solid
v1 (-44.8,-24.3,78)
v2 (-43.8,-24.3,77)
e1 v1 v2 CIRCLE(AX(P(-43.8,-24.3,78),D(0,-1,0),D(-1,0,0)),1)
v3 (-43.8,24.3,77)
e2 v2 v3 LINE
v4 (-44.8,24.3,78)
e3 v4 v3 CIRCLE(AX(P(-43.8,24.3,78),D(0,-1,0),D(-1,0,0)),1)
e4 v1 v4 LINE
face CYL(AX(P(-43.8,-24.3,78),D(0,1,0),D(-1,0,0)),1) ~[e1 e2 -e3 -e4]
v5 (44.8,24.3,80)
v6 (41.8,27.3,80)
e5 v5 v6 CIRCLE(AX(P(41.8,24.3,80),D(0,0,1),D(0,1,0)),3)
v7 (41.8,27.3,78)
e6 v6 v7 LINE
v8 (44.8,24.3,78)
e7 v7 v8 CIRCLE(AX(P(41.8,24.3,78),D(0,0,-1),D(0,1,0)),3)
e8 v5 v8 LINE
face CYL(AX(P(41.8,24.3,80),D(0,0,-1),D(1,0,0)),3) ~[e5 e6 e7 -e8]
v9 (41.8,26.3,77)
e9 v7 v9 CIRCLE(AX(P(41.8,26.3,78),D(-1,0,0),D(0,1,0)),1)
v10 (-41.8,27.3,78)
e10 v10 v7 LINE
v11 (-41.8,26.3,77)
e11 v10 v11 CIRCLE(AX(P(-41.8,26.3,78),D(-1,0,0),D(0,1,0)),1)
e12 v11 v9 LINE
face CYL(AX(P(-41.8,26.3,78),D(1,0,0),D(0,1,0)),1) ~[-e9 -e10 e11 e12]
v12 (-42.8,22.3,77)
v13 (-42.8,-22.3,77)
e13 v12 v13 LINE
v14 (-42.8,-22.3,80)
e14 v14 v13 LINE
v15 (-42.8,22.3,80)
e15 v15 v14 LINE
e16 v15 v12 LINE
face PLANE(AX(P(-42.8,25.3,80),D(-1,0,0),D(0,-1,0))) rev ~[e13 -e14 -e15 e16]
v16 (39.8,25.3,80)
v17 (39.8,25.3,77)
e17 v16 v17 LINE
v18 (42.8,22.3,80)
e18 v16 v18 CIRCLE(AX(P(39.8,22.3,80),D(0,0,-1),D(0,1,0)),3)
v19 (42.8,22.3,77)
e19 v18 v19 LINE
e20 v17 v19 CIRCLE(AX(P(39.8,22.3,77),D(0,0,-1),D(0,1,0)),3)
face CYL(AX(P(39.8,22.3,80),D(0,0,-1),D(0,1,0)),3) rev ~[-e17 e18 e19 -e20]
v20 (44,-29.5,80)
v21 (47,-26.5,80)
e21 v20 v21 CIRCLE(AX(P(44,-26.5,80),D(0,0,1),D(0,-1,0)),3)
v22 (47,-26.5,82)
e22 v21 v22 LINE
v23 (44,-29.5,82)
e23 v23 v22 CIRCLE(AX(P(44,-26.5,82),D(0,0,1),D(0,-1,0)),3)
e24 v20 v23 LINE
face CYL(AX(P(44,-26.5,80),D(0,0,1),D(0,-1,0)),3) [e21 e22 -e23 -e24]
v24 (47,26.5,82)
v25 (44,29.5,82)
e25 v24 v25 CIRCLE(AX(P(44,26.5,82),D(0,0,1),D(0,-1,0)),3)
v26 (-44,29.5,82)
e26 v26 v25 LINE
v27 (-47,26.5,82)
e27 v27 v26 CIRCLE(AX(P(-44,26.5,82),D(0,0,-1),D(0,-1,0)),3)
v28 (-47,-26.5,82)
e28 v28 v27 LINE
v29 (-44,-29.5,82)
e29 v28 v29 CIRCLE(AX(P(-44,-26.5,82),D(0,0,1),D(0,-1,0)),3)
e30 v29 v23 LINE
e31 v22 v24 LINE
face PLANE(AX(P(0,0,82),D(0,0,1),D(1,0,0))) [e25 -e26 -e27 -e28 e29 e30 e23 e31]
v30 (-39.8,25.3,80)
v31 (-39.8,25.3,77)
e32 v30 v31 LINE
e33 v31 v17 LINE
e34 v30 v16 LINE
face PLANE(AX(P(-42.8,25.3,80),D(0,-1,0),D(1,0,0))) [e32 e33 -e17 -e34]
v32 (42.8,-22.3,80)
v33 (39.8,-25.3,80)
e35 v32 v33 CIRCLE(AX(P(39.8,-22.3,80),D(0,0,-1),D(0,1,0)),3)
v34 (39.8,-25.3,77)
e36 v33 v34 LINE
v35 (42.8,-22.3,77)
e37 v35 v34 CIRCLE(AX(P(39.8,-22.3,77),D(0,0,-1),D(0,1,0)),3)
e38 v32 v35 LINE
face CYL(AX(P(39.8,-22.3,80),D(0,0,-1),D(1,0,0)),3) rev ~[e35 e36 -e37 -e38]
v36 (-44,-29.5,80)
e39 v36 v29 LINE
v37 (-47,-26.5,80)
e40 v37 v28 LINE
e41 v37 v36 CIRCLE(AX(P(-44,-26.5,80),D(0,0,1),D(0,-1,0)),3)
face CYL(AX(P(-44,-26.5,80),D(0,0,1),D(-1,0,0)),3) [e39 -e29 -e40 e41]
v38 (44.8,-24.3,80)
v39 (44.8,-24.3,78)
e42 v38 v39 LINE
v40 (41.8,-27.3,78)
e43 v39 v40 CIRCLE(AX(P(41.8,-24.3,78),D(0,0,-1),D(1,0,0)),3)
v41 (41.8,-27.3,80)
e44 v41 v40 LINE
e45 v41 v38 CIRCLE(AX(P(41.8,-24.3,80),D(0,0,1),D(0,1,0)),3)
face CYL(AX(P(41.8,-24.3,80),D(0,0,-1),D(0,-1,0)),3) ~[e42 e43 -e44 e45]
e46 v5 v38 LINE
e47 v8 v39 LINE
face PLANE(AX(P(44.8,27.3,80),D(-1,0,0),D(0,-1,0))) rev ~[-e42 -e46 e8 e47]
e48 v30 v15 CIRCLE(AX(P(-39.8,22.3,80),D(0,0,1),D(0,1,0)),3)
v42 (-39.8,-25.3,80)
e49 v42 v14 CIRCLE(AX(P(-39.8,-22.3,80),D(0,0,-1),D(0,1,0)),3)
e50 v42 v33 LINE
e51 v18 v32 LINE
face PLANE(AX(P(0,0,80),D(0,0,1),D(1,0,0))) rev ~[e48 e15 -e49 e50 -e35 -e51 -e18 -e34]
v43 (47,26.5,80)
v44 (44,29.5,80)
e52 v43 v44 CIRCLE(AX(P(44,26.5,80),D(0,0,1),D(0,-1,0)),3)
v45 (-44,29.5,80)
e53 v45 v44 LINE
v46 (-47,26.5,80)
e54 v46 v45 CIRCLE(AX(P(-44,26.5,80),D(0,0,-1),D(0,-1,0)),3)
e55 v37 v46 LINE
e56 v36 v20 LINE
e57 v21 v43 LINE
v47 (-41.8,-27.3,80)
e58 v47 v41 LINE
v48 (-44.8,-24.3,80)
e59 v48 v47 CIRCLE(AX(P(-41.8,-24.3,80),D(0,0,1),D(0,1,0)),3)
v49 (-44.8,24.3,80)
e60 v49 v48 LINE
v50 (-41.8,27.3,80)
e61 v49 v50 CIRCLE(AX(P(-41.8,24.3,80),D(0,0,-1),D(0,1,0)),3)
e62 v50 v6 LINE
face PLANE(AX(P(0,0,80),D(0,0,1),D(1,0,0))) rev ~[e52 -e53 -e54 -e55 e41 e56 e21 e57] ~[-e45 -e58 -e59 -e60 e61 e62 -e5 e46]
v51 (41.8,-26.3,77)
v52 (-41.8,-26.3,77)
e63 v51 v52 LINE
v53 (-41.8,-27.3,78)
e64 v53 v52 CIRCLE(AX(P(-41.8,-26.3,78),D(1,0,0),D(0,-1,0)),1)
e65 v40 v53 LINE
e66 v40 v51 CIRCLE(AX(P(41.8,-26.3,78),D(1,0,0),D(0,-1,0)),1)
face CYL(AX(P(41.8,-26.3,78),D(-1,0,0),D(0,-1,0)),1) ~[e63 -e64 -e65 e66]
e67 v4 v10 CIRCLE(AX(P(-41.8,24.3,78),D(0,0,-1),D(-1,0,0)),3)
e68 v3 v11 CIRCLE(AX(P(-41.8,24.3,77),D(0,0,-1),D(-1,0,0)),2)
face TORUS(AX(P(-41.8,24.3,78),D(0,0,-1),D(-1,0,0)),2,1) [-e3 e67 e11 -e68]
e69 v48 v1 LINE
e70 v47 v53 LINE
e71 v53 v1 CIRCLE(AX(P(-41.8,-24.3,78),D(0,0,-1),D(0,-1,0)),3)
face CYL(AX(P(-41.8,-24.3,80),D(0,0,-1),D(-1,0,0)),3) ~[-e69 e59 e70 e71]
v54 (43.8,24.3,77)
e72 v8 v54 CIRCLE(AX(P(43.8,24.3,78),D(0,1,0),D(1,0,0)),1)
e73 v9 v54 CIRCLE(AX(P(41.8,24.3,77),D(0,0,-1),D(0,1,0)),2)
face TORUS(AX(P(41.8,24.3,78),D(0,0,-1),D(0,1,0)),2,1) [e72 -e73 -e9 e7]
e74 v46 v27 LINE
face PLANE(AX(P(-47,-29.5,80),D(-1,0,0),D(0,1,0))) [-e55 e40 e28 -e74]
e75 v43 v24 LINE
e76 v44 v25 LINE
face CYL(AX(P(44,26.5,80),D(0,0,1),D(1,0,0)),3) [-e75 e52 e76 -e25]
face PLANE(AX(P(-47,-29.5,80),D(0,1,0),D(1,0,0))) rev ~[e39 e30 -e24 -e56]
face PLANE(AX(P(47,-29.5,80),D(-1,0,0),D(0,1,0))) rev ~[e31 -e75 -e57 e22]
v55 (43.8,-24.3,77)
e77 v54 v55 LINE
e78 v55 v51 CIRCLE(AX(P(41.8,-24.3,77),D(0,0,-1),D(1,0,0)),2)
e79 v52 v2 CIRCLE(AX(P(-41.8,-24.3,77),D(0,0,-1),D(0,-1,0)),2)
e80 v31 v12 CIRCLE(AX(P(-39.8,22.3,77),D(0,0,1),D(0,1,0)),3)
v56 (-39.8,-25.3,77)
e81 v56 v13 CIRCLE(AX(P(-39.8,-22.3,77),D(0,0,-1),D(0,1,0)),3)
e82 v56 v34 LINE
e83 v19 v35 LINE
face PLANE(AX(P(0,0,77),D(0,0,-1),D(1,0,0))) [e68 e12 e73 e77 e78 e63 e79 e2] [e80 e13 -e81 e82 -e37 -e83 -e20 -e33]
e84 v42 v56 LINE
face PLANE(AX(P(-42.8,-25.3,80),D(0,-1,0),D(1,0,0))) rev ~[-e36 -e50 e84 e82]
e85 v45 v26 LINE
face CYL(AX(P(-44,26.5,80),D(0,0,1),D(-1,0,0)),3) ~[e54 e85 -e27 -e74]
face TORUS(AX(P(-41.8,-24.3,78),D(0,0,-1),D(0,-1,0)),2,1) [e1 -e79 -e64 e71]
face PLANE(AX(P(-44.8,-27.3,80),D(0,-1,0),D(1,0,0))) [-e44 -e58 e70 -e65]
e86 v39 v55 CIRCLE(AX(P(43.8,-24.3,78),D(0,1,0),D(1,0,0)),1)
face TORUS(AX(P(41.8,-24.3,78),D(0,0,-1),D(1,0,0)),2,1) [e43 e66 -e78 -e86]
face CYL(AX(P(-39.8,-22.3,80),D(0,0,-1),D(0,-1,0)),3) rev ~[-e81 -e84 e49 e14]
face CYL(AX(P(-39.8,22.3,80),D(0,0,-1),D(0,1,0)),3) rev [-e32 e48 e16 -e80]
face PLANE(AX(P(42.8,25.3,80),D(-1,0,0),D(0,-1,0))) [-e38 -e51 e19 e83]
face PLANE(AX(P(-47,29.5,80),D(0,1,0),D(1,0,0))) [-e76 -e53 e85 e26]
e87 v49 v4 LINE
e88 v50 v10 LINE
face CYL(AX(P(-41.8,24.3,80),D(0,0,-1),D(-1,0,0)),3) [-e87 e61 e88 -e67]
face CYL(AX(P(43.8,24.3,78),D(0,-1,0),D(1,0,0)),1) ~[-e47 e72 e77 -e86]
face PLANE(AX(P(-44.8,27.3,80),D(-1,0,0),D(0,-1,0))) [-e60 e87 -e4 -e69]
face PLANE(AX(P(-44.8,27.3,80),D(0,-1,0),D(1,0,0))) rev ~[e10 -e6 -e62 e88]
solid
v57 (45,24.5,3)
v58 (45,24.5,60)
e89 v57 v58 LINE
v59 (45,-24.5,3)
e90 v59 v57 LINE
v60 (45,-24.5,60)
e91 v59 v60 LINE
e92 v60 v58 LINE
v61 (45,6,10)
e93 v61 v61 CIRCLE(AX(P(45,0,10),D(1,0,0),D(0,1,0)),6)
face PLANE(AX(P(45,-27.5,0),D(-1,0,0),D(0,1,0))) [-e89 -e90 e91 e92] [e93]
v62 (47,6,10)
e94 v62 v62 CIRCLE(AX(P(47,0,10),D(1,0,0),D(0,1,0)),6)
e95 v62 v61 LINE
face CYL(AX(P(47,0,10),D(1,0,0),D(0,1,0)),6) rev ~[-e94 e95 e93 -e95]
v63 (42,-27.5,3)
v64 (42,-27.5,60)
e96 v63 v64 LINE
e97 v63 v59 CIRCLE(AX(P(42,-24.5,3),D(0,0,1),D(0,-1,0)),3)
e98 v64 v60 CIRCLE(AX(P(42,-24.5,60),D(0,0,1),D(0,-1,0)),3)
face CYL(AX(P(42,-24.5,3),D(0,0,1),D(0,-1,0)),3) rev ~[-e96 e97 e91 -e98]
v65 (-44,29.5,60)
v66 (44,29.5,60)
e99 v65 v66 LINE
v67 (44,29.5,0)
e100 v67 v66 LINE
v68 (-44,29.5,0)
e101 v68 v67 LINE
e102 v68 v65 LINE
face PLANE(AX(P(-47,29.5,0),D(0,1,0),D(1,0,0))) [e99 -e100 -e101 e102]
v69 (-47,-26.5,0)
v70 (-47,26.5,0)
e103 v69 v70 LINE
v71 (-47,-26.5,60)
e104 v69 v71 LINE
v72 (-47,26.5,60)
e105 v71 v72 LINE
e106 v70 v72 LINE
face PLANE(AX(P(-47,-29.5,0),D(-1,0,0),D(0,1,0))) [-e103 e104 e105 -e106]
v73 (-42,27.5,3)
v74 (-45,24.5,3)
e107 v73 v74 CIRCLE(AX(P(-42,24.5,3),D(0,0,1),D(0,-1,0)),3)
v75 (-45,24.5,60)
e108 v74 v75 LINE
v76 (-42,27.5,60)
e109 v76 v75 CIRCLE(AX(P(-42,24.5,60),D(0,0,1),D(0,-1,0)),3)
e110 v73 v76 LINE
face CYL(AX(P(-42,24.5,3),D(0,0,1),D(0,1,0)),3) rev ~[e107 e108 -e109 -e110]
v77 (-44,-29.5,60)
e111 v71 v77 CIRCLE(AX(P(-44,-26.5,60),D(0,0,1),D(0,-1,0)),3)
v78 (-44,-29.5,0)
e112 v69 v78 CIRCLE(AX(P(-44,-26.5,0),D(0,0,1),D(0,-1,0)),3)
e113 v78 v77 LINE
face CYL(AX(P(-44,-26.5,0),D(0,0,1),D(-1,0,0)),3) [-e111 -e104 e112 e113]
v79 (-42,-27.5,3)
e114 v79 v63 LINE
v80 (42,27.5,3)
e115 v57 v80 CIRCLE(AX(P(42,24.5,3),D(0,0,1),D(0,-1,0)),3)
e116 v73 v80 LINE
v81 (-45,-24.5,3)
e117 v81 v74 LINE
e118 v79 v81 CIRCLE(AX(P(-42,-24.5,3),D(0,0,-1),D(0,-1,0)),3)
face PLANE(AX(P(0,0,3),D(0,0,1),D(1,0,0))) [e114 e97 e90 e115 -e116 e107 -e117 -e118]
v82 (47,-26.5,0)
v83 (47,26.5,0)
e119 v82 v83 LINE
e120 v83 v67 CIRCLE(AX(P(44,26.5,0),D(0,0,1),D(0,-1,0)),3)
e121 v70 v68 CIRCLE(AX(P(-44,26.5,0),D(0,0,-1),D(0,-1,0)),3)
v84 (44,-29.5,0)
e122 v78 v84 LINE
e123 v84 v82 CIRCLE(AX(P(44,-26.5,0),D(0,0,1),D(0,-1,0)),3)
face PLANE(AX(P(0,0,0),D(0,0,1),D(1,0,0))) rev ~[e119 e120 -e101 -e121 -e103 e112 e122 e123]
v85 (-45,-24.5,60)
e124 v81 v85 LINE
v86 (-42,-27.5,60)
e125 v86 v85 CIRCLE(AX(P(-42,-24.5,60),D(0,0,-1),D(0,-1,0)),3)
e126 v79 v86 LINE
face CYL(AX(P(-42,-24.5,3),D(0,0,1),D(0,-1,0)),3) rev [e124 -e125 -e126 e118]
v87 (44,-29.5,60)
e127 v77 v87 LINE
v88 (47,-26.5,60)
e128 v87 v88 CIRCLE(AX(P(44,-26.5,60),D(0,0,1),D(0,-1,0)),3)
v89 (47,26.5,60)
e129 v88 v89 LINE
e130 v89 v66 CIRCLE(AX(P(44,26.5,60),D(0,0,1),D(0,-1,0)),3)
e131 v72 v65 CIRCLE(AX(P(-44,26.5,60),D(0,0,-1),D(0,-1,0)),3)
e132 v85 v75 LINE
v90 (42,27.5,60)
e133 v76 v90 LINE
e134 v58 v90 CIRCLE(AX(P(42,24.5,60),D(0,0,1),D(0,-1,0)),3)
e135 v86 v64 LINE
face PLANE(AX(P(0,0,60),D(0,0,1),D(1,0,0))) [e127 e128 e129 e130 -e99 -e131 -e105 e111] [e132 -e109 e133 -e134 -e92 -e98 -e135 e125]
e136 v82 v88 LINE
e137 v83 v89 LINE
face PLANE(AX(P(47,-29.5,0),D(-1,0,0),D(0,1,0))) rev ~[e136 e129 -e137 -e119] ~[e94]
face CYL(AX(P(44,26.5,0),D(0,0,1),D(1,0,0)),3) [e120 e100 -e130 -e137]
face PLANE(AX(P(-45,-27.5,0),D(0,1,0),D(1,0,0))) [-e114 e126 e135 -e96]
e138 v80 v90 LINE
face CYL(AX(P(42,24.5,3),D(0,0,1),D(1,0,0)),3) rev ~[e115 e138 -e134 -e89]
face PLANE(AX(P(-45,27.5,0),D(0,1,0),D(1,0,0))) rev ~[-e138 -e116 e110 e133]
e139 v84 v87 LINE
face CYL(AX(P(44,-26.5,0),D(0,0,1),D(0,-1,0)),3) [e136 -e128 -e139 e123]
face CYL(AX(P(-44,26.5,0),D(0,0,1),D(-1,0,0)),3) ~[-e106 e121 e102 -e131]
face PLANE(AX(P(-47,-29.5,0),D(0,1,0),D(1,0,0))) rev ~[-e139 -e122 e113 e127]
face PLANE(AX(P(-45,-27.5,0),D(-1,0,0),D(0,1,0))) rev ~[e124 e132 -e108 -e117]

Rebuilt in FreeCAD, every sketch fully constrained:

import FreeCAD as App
import Part
import Sketcher

V = App.Vector
Q = App.Units.Quantity


def edges_at(feature, points):
    """Names of the edges that pass closest to the given points."""
    edges = feature.Shape.Edges
    near = lambda p: min(range(len(edges)), key=lambda i: edges[i].distToShape(Part.Vertex(*p))[0])
    return sorted({f"Edge{near(p) + 1}" for p in points})


def add_polygon(sketch, points):
    """Adds a closed chain of lines whose ends are joined by coincident constraints."""
    first, n = sketch.GeometryCount, len(points)
    for a, b in zip(points, points[1:] + points[:1]):
        sketch.addGeometry(Part.LineSegment(App.Vector(*a, 0), App.Vector(*b, 0)), False)
    for i in range(n):
        sketch.addConstraint(Sketcher.Constraint("Coincident", first + i, 2, first + (i + 1) % n, 1))

doc = App.newDocument("Part")
params = doc.addObject("Spreadsheet::Sheet", "Params")
for row, (alias, value) in enumerate([
    ("sketch1_width", "94 mm"),
    ("sketch1_width2", "90 mm"),
    ("sketch1_height", "59 mm"),
    ("sketch1_height2", "55 mm"),
    ("pad1_length", "60 mm"),
    ("sketch2_width", "90 mm"),
    ("sketch2_height", "55 mm"),
    ("pad2_length", "3 mm"),
    ("sketch3_diameter", "12 mm"),
    ("pocket1_length", "5 mm"),
    ("fillet_radius", "3 mm"),
    ("sketch4_width", "94 mm"),
    ("sketch4_height", "59 mm"),
    ("pad3_length", "2 mm"),
    ("fillet2_radius", "3 mm"),
    ("sketch5_width", "89.6 mm"),
    ("sketch5_width2", "85.6 mm"),
    ("sketch5_height", "54.6 mm"),
    ("sketch5_height2", "50.6 mm"),
    ("pad4_length", "3 mm"),
    ("fillet3_radius", "3 mm"),
    ("fillet4_radius", "1 mm"),
], start=1):
    params.set(f"A{row}", alias)
    params.set(f"B{row}", "=" + value)
    params.setAlias(f"B{row}", alias)

body = doc.addObject("PartDesign::Body", "Body")

# Sketch on XY plane
sketch1 = doc.addObject("Sketcher::SketchObject", "Sketch")
body.addObject(sketch1)
sketch1.AttachmentSupport = (doc.XY_Plane, [""])
sketch1.MapMode = "FlatFace"
add_polygon(sketch1, [(-47, 30), (-47, -30), (47, -30), (47, 30)])  # lines 0-3
add_polygon(sketch1, [(45, -28), (-45, -28), (-45, 28), (45, 28)])  # lines 4-7
sketch1.addConstraint([
    Sketcher.Constraint("Vertical", 0),
    Sketcher.Constraint("Horizontal", 1),
    Sketcher.Constraint("Vertical", 2),
    Sketcher.Constraint("Horizontal", 3),
    Sketcher.Constraint("Horizontal", 4),
    Sketcher.Constraint("Vertical", 5),
    Sketcher.Constraint("Horizontal", 6),
    Sketcher.Constraint("Vertical", 7),
    Sketcher.Constraint("Symmetric", 0, 2, 2, 2, -1, 1),
    Sketcher.Constraint("Symmetric", 4, 2, 6, 2, -1, 1),
    Sketcher.Constraint("DistanceX", 1, 1, 1, 2, Q("94 mm")),
    Sketcher.Constraint("DistanceX", 4, 2, 4, 1, Q("90 mm")),
    Sketcher.Constraint("DistanceY", 0, 2, 0, 1, Q("59 mm")),
    Sketcher.Constraint("DistanceY", 5, 1, 5, 2, Q("55 mm")),
])
sketch1.setExpression("Constraints[18]", "Params.sketch1_width")
sketch1.setExpression("Constraints[19]", "Params.sketch1_width2")
sketch1.setExpression("Constraints[20]", "Params.sketch1_height")
sketch1.setExpression("Constraints[21]", "Params.sketch1_height2")
pad1 = doc.addObject("PartDesign::Pad", "Pad")
body.addObject(pad1)
pad1.Profile = sketch1
pad1.setExpression("Length", "Params.pad1_length")

# Sketch on XY plane
sketch2 = doc.addObject("Sketcher::SketchObject", "Sketch001")
body.addObject(sketch2)
sketch2.AttachmentSupport = (doc.XY_Plane, [""])
sketch2.MapMode = "FlatFace"
add_polygon(sketch2, [(-45, 28), (-45, -28), (45, -28), (45, 28)])  # lines 0-3
sketch2.addConstraint([
    Sketcher.Constraint("Vertical", 0),
    Sketcher.Constraint("Horizontal", 1),
    Sketcher.Constraint("Vertical", 2),
    Sketcher.Constraint("Horizontal", 3),
    Sketcher.Constraint("Symmetric", 0, 2, 2, 2, -1, 1),
    Sketcher.Constraint("DistanceX", 1, 1, 1, 2, Q("90 mm")),
    Sketcher.Constraint("DistanceY", 0, 2, 0, 1, Q("55 mm")),
])
sketch2.setExpression("Constraints[9]", "Params.sketch2_width")
sketch2.setExpression("Constraints[10]", "Params.sketch2_height")
pad2 = doc.addObject("PartDesign::Pad", "Pad001")
body.addObject(pad2)
pad2.Profile = sketch2
pad2.setExpression("Length", "Params.pad2_length")

# Sketch on YZ plane
sketch3 = doc.addObject("Sketcher::SketchObject", "Sketch002")
body.addObject(sketch3)
sketch3.AttachmentSupport = (doc.YZ_Plane, [""])
sketch3.MapMode = "FlatFace"
sketch3.AttachmentOffset = App.Placement(V(0, 0, 47), App.Rotation())
sketch3.addGeometry(Part.Circle(V(0, 10, 0), V(0, 0, 1), 6), False)
sketch3.addConstraint([
    Sketcher.Constraint("PointOnObject", 0, 3, -2),
    Sketcher.Constraint("Diameter", 0, Q("12 mm")),
    Sketcher.Constraint("DistanceY", -1, 1, 0, 3, Q("10 mm")),
])
sketch3.setExpression("Constraints[1]", "Params.sketch3_diameter")
pocket1 = doc.addObject("PartDesign::Pocket", "Pocket")
body.addObject(pocket1)
pocket1.Profile = sketch3
pocket1.setExpression("Length", "Params.pocket1_length")
doc.recompute()

fillet = doc.addObject("PartDesign::Fillet", "Fillet")
body.addObject(fillet)
fillet.Base = (pocket1, edges_at(pocket1, [
    (47, -29.5, 30),
    (47, 29.5, 30),
    (-47, 29.5, 30),
    (-47, -29.5, 30),
    (-45, 27.5, 31.5),
    (-45, -27.5, 31.5),
    (45, 27.5, 31.5),
    (45, -27.5, 31.5),
]))
fillet.setExpression("Radius", "Params.fillet_radius")
body2 = doc.addObject("PartDesign::Body", "Body001")

# Sketch on XY plane
sketch4 = doc.addObject("Sketcher::SketchObject", "Sketch003")
body2.addObject(sketch4)
sketch4.AttachmentSupport = (doc.getObject("XY_Plane001"), [""])
sketch4.MapMode = "FlatFace"
sketch4.AttachmentOffset = App.Placement(V(0, 0, 80), App.Rotation())
add_polygon(sketch4, [(-47, 30), (-47, -30), (47, -30), (47, 30)])  # lines 0-3
sketch4.addConstraint([
    Sketcher.Constraint("Vertical", 0),
    Sketcher.Constraint("Horizontal", 1),
    Sketcher.Constraint("Vertical", 2),
    Sketcher.Constraint("Horizontal", 3),
    Sketcher.Constraint("Symmetric", 0, 2, 2, 2, -1, 1),
    Sketcher.Constraint("DistanceX", 1, 1, 1, 2, Q("94 mm")),
    Sketcher.Constraint("DistanceY", 0, 2, 0, 1, Q("59 mm")),
])
sketch4.setExpression("Constraints[9]", "Params.sketch4_width")
sketch4.setExpression("Constraints[10]", "Params.sketch4_height")
pad3 = doc.addObject("PartDesign::Pad", "Pad002")
body2.addObject(pad3)
pad3.Profile = sketch4
pad3.setExpression("Length", "Params.pad3_length")
doc.recompute()

fillet2 = doc.addObject("PartDesign::Fillet", "Fillet001")
body2.addObject(fillet2)
fillet2.Base = (pad3, edges_at(pad3, [
    (-47, 29.5, 81),
    (-47, -29.5, 81),
    (47, -29.5, 81),
    (47, 29.5, 81),
]))
fillet2.setExpression("Radius", "Params.fillet2_radius")

# Sketch on XY plane
sketch5 = doc.addObject("Sketcher::SketchObject", "Sketch004")
body2.addObject(sketch5)
sketch5.AttachmentSupport = (doc.getObject("XY_Plane001"), [""])
sketch5.MapMode = "FlatFace"
sketch5.AttachmentOffset = App.Placement(V(0, 0, 80), App.Rotation())
add_polygon(sketch5, [(-45, -27), (-45, 27), (45, 27), (45, -27)])  # lines 0-3
add_polygon(sketch5, [(43, 25), (-43, 25), (-43, -25), (43, -25)])  # lines 4-7
sketch5.addConstraint([
    Sketcher.Constraint("Vertical", 0),
    Sketcher.Constraint("Horizontal", 1),
    Sketcher.Constraint("Vertical", 2),
    Sketcher.Constraint("Horizontal", 3),
    Sketcher.Constraint("Horizontal", 4),
    Sketcher.Constraint("Vertical", 5),
    Sketcher.Constraint("Horizontal", 6),
    Sketcher.Constraint("Vertical", 7),
    Sketcher.Constraint("Symmetric", 0, 2, 2, 2, -1, 1),
    Sketcher.Constraint("Symmetric", 4, 2, 6, 2, -1, 1),
    Sketcher.Constraint("DistanceX", 1, 1, 1, 2, Q("89.6 mm")),
    Sketcher.Constraint("DistanceX", 4, 2, 4, 1, Q("85.6 mm")),
    Sketcher.Constraint("DistanceY", 0, 1, 0, 2, Q("54.6 mm")),
    Sketcher.Constraint("DistanceY", 5, 2, 5, 1, Q("50.6 mm")),
])
sketch5.setExpression("Constraints[18]", "Params.sketch5_width")
sketch5.setExpression("Constraints[19]", "Params.sketch5_width2")
sketch5.setExpression("Constraints[20]", "Params.sketch5_height")
sketch5.setExpression("Constraints[21]", "Params.sketch5_height2")
pad4 = doc.addObject("PartDesign::Pad", "Pad003")
body2.addObject(pad4)
pad4.Profile = sketch5
pad4.setExpression("Length", "Params.pad4_length")
pad4.Reversed = True
doc.recompute()

fillet3 = doc.addObject("PartDesign::Fillet", "Fillet002")
body2.addObject(fillet3)
fillet3.Base = (pad4, edges_at(pad4, [
    (44.8, -27.3, 78.5),
    (-44.8, -27.3, 78.5),
    (42.8, -25.3, 78.5),
    (44.8, 27.3, 78.5),
    (-42.8, -25.3, 78.5),
    (-44.8, 27.3, 78.5),
    (42.8, 25.3, 78.5),
    (-42.8, 25.3, 78.5),
]))
fillet3.setExpression("Radius", "Params.fillet3_radius")
doc.recompute()

fillet4 = doc.addObject("PartDesign::Fillet", "Fillet003")
body2.addObject(fillet4)
fillet4.Base = (fillet3, edges_at(fillet3, [
    (0, 27.3, 77),
    (-43.921, 26.421, 77),
    (-44.8, 0, 77),
    (-43.921, -26.421, 77),
    (0, -27.3, 77),
    (44.8, 0, 77),
    (43.921, -26.421, 77),
    (43.921, 26.421, 77),
]))
fillet4.setExpression("Radius", "Params.fillet4_radius")

doc.recompute()
